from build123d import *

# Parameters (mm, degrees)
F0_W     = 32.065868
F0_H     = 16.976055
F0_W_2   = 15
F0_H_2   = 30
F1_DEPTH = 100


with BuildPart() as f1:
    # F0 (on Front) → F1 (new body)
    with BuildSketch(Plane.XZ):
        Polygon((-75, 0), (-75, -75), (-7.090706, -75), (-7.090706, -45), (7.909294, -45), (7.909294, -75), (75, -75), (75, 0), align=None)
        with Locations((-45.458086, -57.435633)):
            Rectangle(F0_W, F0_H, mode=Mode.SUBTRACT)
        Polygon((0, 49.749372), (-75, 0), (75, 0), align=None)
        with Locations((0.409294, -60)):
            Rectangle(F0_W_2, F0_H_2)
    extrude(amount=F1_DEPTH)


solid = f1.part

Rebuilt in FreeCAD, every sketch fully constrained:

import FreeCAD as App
import Part
import Sketcher
from FreeCAD import Vector

doc = App.newDocument("Part")
params = doc.addObject("Spreadsheet::Sheet", "Params")
for row, (alias, value) in enumerate([
    ("sketch1_width", "150 mm"),
    ("sketch1_height", "75 mm"),
    ("sketch1_length", "90 mm"),
    ("pad1_length", "100 mm"),
], start=1):
    params.set(f"A{row}", alias)
    params.set(f"B{row}", "=" + value)
    params.setAlias(f"B{row}", alias)

body = doc.addObject("PartDesign::Body", "Body")

# Sketch on XZ plane
sketch1 = body.newObject("Sketcher::SketchObject", "Sketch")
sketch1.AttachmentSupport = (doc.getObject("XZ_Plane"), [""])
sketch1.MapMode = "FlatFace"
sketch1.addGeometry(Part.LineSegment(Vector(-75, 0, 0), Vector(-75, -75, 0)), False)
sketch1.addGeometry(Part.LineSegment(Vector(-75, -75, 0), Vector(75, -75, 0)), False)
sketch1.addGeometry(Part.LineSegment(Vector(75, -75, 0), Vector(75, 0, 0)), False)
sketch1.addGeometry(Part.LineSegment(Vector(75, 0, 0), Vector(0, 50, 0)), False)
sketch1.addGeometry(Part.LineSegment(Vector(0, 50, 0), Vector(-75, 0, 0)), False)
sketch1.addGeometry(Part.LineSegment(Vector(-29, -66, 0), Vector(-61, -66, 0)), False)
sketch1.addGeometry(Part.LineSegment(Vector(-61, -66, 0), Vector(-61, -49, 0)), False)
sketch1.addGeometry(Part.LineSegment(Vector(-61, -49, 0), Vector(-29, -49, 0)), False)
sketch1.addGeometry(Part.LineSegment(Vector(-29, -49, 0), Vector(-29, -66, 0)), False)
sketch1.addConstraint(Sketcher.Constraint("Coincident", 0, 2, 1, 1))
sketch1.addConstraint(Sketcher.Constraint("Coincident", 1, 2, 2, 1))
sketch1.addConstraint(Sketcher.Constraint("Coincident", 2, 2, 3, 1))
sketch1.addConstraint(Sketcher.Constraint("Coincident", 3, 2, 4, 1))
sketch1.addConstraint(Sketcher.Constraint("Coincident", 4, 2, 0, 1))
sketch1.addConstraint(Sketcher.Constraint("Coincident", 5, 2, 6, 1))
sketch1.addConstraint(Sketcher.Constraint("Coincident", 6, 2, 7, 1))
sketch1.addConstraint(Sketcher.Constraint("Coincident", 7, 2, 8, 1))
sketch1.addConstraint(Sketcher.Constraint("Coincident", 8, 2, 5, 1))
sketch1.addConstraint(Sketcher.Constraint("Vertical", 0))
sketch1.addConstraint(Sketcher.Constraint("Horizontal", 1))
sketch1.addConstraint(Sketcher.Constraint("Vertical", 2))
sketch1.addConstraint(Sketcher.Constraint("Horizontal", 5))
sketch1.addConstraint(Sketcher.Constraint("Vertical", 6))
sketch1.addConstraint(Sketcher.Constraint("Horizontal", 7))
sketch1.addConstraint(Sketcher.Constraint("Vertical", 8))
sketch1.addConstraint(Sketcher.Constraint("Symmetric", 2, 2, 4, 2, -1, 1))
sketch1.addConstraint(Sketcher.Constraint("PointOnObject", 2, 2, -1))
sketch1.addConstraint(Sketcher.Constraint("PointOnObject", 3, 2, -2))
sketch1.addConstraint(Sketcher.Constraint("DistanceX", 1, 1, 1, 2, 150.0))
sketch1.addConstraint(Sketcher.Constraint("DistanceY", 0, 2, 0, 1, 75.0))
sketch1.addConstraint(Sketcher.Constraint("Distance", 3, 90.0))
sketch1.addConstraint(Sketcher.Constraint("DistanceX", 5, 2, 5, 1, 32.065868))
sketch1.addConstraint(Sketcher.Constraint("DistanceY", 6, 1, 6, 2, 16.976055))
sketch1.addConstraint(Sketcher.Constraint("DistanceX", 5, 2, -1, 1, 61.49102))
sketch1.addConstraint(Sketcher.Constraint("DistanceY", 5, 2, -1, 1, 65.92366))
sketch1.setExpression("Constraints[19]", "Params.sketch1_width")
sketch1.setExpression("Constraints[20]", "Params.sketch1_height")
sketch1.setExpression("Constraints[21]", "Params.sketch1_length")
pad1 = body.newObject("PartDesign::Pad", "Pad")
pad1.Profile = sketch1
pad1.setExpression("Length", "Params.pad1_length")

doc.recompute()
